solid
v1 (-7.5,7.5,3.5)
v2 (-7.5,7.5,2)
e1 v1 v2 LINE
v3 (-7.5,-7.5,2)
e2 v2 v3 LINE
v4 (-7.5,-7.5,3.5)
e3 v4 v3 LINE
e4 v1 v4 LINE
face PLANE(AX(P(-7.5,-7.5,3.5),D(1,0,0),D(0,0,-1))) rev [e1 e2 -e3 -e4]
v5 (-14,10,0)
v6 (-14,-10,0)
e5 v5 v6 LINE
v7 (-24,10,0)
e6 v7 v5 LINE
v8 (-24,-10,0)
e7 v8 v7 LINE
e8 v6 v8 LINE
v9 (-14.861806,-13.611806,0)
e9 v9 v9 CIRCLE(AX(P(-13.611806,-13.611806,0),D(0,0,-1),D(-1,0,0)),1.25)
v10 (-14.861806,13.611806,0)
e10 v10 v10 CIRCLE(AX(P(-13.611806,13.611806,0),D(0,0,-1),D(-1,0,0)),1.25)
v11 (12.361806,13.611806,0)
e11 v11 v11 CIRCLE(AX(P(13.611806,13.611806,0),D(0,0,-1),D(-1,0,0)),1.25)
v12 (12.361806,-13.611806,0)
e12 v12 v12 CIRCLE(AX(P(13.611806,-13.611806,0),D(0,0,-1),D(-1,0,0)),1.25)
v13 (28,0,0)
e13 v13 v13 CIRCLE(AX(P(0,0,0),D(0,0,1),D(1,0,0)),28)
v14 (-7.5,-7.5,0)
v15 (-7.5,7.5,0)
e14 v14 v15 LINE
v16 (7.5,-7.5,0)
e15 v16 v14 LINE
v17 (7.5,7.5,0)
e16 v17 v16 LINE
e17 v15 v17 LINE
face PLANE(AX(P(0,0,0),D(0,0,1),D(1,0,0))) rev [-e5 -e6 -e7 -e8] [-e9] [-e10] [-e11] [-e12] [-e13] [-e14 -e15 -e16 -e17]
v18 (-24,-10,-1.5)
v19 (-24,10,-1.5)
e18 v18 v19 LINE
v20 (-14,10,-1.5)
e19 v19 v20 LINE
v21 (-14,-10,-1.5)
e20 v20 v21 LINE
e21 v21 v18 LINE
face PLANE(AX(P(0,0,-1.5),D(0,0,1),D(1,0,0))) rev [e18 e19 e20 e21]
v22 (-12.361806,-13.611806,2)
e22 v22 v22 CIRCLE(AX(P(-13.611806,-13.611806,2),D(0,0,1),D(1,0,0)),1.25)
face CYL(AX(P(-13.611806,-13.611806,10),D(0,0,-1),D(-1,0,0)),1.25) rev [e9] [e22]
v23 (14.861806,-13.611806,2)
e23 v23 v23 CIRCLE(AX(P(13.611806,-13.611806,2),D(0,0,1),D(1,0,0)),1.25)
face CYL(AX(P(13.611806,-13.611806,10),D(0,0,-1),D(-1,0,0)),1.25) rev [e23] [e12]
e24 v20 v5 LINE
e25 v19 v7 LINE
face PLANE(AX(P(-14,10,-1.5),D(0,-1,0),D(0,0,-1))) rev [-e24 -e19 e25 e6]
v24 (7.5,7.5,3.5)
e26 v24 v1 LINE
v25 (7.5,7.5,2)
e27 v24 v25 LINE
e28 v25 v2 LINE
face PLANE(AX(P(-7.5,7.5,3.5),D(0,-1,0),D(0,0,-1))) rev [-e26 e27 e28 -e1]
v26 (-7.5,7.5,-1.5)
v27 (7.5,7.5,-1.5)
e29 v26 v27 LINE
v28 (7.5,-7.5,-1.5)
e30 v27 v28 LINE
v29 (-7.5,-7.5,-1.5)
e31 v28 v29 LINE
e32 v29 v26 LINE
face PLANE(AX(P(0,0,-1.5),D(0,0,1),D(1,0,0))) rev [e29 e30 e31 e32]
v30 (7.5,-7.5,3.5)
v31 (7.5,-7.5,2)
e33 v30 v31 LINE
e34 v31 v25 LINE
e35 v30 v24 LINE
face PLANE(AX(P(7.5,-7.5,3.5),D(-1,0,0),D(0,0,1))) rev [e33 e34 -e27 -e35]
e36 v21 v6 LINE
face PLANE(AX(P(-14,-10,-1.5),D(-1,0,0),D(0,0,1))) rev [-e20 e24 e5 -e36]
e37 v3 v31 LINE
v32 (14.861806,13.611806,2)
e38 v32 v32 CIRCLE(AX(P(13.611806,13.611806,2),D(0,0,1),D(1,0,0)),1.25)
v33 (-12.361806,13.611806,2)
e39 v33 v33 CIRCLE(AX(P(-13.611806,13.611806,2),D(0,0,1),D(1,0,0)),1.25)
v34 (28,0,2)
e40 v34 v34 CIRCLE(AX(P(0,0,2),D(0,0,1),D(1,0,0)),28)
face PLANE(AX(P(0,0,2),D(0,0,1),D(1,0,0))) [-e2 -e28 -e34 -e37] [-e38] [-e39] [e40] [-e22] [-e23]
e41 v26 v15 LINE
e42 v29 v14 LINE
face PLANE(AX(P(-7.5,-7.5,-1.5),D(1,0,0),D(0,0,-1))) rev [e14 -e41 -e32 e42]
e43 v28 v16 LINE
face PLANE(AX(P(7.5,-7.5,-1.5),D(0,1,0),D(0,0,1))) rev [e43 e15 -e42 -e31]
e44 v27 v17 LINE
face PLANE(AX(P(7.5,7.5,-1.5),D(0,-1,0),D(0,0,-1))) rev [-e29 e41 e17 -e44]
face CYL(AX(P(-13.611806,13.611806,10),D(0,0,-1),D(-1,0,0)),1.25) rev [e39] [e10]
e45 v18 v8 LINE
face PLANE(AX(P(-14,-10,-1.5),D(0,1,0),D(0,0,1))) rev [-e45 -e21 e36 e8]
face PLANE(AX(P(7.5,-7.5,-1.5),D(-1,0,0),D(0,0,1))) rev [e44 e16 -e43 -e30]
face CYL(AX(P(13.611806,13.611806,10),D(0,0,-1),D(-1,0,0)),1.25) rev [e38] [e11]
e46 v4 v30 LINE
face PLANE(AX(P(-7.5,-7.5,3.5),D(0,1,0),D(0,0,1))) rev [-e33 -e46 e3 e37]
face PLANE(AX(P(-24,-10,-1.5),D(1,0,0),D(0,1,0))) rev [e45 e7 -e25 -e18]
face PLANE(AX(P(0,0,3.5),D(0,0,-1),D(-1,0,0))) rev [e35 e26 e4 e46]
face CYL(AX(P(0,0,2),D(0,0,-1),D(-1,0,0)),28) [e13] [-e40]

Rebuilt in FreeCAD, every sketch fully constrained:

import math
import FreeCAD as App
import Part
import Sketcher
from FreeCAD import Vector
Q = App.Units.Quantity


def add_polygon(sketch, points):
    """Adds a closed chain of lines whose ends are joined by coincident constraints."""
    first, n = sketch.GeometryCount, len(points)
    for a, b in zip(points, points[1:] + points[:1]):
        sketch.addGeometry(Part.LineSegment(App.Vector(*a, 0), App.Vector(*b, 0)), False)
    for i in range(n):
        sketch.addConstraint(Sketcher.Constraint("Coincident", first + i, 2, first + (i + 1) % n, 1))

doc = App.newDocument("Part")
body = doc.addObject("PartDesign::Body", "Body")

# Sketch on XY plane
sketch1 = doc.addObject("Sketcher::SketchObject", "Sketch")
body.addObject(sketch1)
sketch1.AttachmentSupport = (doc.XY_Plane, [""])
sketch1.MapMode = "FlatFace"
sketch1.addGeometry(Part.Circle(Vector(0, 0, 0), Vector(0, 0, 1), 28), False)
sketch1.addConstraint(Sketcher.Constraint("Coincident", 0, 3, -1, 1))
sketch1.addConstraint(Sketcher.Constraint("Diameter", 0, Q("56 mm")))
pad1 = doc.addObject("PartDesign::Pad", "Pad")
body.addObject(pad1)
pad1.Profile = sketch1
pad1.Length = 2

# Sketch on XY plane
sketch2 = doc.addObject("Sketcher::SketchObject", "Sketch001")
body.addObject(sketch2)
sketch2.AttachmentSupport = (doc.XY_Plane, [""])
sketch2.MapMode = "FlatFace"
sketch2.AttachmentOffset = App.Placement(Vector(0, 0, 2), App.Rotation())
add_polygon(sketch2, [(-8, 8), (-8, -8), (8, -8), (8, 8)])  # lines 0-3
sketch2.addConstraint(Sketcher.Constraint("Vertical", 0))
sketch2.addConstraint(Sketcher.Constraint("Horizontal", 1))
sketch2.addConstraint(Sketcher.Constraint("Vertical", 2))
sketch2.addConstraint(Sketcher.Constraint("Horizontal", 3))
sketch2.addConstraint(Sketcher.Constraint("Symmetric", 0, 2, 2, 2, -1, 1))
sketch2.addConstraint(Sketcher.Constraint("Equal", 3, 0))
sketch2.addConstraint(Sketcher.Constraint("DistanceX", 1, 1, 1, 2, Q("15 mm")))
pad2 = doc.addObject("PartDesign::Pad", "Pad001")
body.addObject(pad2)
pad2.Profile = sketch2
pad2.Length = 1.5

# Sketch on XY plane
sketch3 = doc.addObject("Sketcher::SketchObject", "Sketch002")
body.addObject(sketch3)
sketch3.AttachmentSupport = (doc.XY_Plane, [""])
sketch3.MapMode = "FlatFace"
add_polygon(sketch3, [(-14, 10), (-14, -10), (-24, -10), (-24, 10)])  # lines 0-3
sketch3.addConstraint(Sketcher.Constraint("Vertical", 0))
sketch3.addConstraint(Sketcher.Constraint("Horizontal", 1))
sketch3.addConstraint(Sketcher.Constraint("Vertical", 2))
sketch3.addConstraint(Sketcher.Constraint("Horizontal", 3))
sketch3.addConstraint(Sketcher.Constraint("DistanceX", 1, 2, 1, 1, Q("10 mm")))
sketch3.addConstraint(Sketcher.Constraint("DistanceY", 0, 2, 0, 1, Q("20 mm")))
sketch3.addConstraint(Sketcher.Constraint("DistanceX", 0, 2, -1, 1, Q("14 mm")))
sketch3.addConstraint(Sketcher.Constraint("DistanceY", 0, 2, -1, 1, Q("10 mm")))
pad3 = doc.addObject("PartDesign::Pad", "Pad002")
body.addObject(pad3)
pad3.Profile = sketch3
pad3.Length = 1.5
pad3.Reversed = True

# Sketch on XY plane
sketch4 = doc.addObject("Sketcher::SketchObject", "Sketch003")
body.addObject(sketch4)
sketch4.AttachmentSupport = (doc.XY_Plane, [""])
sketch4.MapMode = "FlatFace"
add_polygon(sketch4, [(8, 8), (8, -8), (-8, -8), (-8, 8)])  # lines 0-3
sketch4.addConstraint(Sketcher.Constraint("Vertical", 0))
sketch4.addConstraint(Sketcher.Constraint("Horizontal", 1))
sketch4.addConstraint(Sketcher.Constraint("Vertical", 2))
sketch4.addConstraint(Sketcher.Constraint("Horizontal", 3))
sketch4.addConstraint(Sketcher.Constraint("Symmetric", 0, 2, 2, 2, -1, 1))
sketch4.addConstraint(Sketcher.Constraint("Equal", 3, 0))
sketch4.addConstraint(Sketcher.Constraint("DistanceX", 1, 2, 1, 1, Q("15 mm")))
pad4 = doc.addObject("PartDesign::Pad", "Pad003")
body.addObject(pad4)
pad4.Profile = sketch4
pad4.Length = 1.5
pad4.Reversed = True

# Sketch on XY plane
sketch5 = doc.addObject("Sketcher::SketchObject", "Sketch004")
body.addObject(sketch5)
sketch5.AttachmentSupport = (doc.XY_Plane, [""])
sketch5.MapMode = "FlatFace"
sketch5.addGeometry(Part.ArcOfCircle(Part.Circle(Vector(13.6, 13.6, 0), Vector(0, 0, 1), 1.2), math.radians(-135), math.radians(45)), False)
sketch5.addGeometry(Part.ArcOfCircle(Part.Circle(Vector(13.6, 13.6, 0), Vector(0, 0, 1), 1.2), math.radians(180), math.radians(225)), False)
sketch5.addGeometry(Part.ArcOfCircle(Part.Circle(Vector(13.6, 13.6, 0), Vector(0, 0, 1), 1.2), math.radians(45), math.radians(180)), False)
sketch5.addGeometry(Part.ArcOfCircle(Part.Circle(Vector(13.6, -13.6, 0), Vector(0, 0, 1), 1.2), math.radians(135), math.radians(180)), False)
sketch5.addGeometry(Part.ArcOfCircle(Part.Circle(Vector(13.6, -13.6, 0), Vector(0, 0, 1), 1.2), math.radians(-45), math.radians(135)), False)
sketch5.addGeometry(Part.ArcOfCircle(Part.Circle(Vector(13.6, -13.6, 0), Vector(0, 0, 1), 1.2), math.radians(180), math.radians(315)), False)
sketch5.addGeometry(Part.ArcOfCircle(Part.Circle(Vector(-13.6, -13.6, 0), Vector(0, 0, 1), 1.2), math.radians(45), math.radians(180)), False)
sketch5.addGeometry(Part.ArcOfCircle(Part.Circle(Vector(-13.6, -13.6, 0), Vector(0, 0, 1), 1.2), math.radians(-135), math.radians(45)), False)
sketch5.addGeometry(Part.ArcOfCircle(Part.Circle(Vector(-13.6, -13.6, 0), Vector(0, 0, 1), 1.3), math.radians(-180), math.radians(-135)), False)
sketch5.addGeometry(Part.ArcOfCircle(Part.Circle(Vector(-13.6, 13.6, 0), Vector(0, 0, 1), 1.2), math.radians(-45), math.radians(135)), False)
sketch5.addGeometry(Part.ArcOfCircle(Part.Circle(Vector(-13.6, 13.6, 0), Vector(0, 0, 1), 1.2), math.radians(180), math.radians(315)), False)
sketch5.addGeometry(Part.ArcOfCircle(Part.Circle(Vector(-13.6, 13.6, 0), Vector(0, 0, 1), 1.3), math.radians(135), math.radians(180)), False)
sketch5.addConstraint(Sketcher.Constraint("Tangent", 0, 1, 1, 2))
sketch5.addConstraint(Sketcher.Constraint("Tangent", 1, 1, 2, 2))
sketch5.addConstraint(Sketcher.Constraint("Tangent", 2, 1, 0, 2))
sketch5.addConstraint(Sketcher.Constraint("Tangent", 3, 1, 4, 2))
sketch5.addConstraint(Sketcher.Constraint("Tangent", 4, 1, 5, 2))
sketch5.addConstraint(Sketcher.Constraint("Tangent", 5, 1, 3, 2))
sketch5.addConstraint(Sketcher.Constraint("Tangent", 6, 1, 7, 2))
sketch5.addConstraint(Sketcher.Constraint("Tangent", 7, 1, 8, 2))
sketch5.addConstraint(Sketcher.Constraint("Tangent", 8, 1, 6, 2))
sketch5.addConstraint(Sketcher.Constraint("Tangent", 9, 1, 10, 2))
sketch5.addConstraint(Sketcher.Constraint("Tangent", 10, 1, 11, 2))
sketch5.addConstraint(Sketcher.Constraint("Tangent", 11, 1, 9, 2))
sketch5.addConstraint(Sketcher.Constraint("Equal", 2, 3))
sketch5.addConstraint(Sketcher.Constraint("Equal", 5, 6))
sketch5.addConstraint(Sketcher.Constraint("Equal", 8, 9))
sketch5.addConstraint(Sketcher.Constraint("Symmetric", 0, 3, 6, 3, -1, 1))
sketch5.addConstraint(Sketcher.Constraint("Symmetric", 3, 3, 9, 3, -1, 1))
sketch5.addConstraint(Sketcher.Constraint("Symmetric", 3, 3, 6, 3, -2))
sketch5.addConstraint(Sketcher.Constraint("Horizontal", 11, 3, 1, 1))
sketch5.addConstraint(Sketcher.Constraint("Horizontal", 8, 3, 5, 1))
sketch5.addConstraint(Sketcher.Constraint("Horizontal", 3, 1, 6, 1))
sketch5.addConstraint(Sketcher.Constraint("Horizontal", 4, 1, 7, 1))
sketch5.addConstraint(Sketcher.Constraint("Horizontal", 5, 1, 8, 1))
sketch5.addConstraint(Sketcher.Constraint("Horizontal", 0, 1, 9, 1))
sketch5.addConstraint(Sketcher.Constraint("Horizontal", 1, 1, 10, 1))
sketch5.addConstraint(Sketcher.Constraint("Horizontal", 2, 1, 11, 1))
sketch5.addConstraint(Sketcher.Constraint("Vertical", 0, 1, 3, 1))
sketch5.addConstraint(Sketcher.Constraint("Vertical", 2, 1, 4, 1))
sketch5.addConstraint(Sketcher.Constraint("Radius", 0, Q("1.25 mm")))
sketch5.addConstraint(Sketcher.Constraint("DistanceX", -1, 1, 2, 1, Q("14.495689 mm")))
sketch5.addConstraint(Sketcher.Constraint("DistanceY", -1, 1, 2, 1, Q("14.495689 mm")))
sketch5.addConstraint(Sketcher.Constraint("DistanceY", 3, 3, 1, 3, Q("27.223611 mm")))
sketch5.addConstraint(Sketcher.Constraint("DistanceY", 4, 1, 0, 1, Q("27.223611 mm")))
pocket1 = doc.addObject("PartDesign::Pocket", "Pocket")
body.addObject(pocket1)
pocket1.Profile = sketch5
pocket1.Length = 10
pocket1.Reversed = True

doc.recompute()
